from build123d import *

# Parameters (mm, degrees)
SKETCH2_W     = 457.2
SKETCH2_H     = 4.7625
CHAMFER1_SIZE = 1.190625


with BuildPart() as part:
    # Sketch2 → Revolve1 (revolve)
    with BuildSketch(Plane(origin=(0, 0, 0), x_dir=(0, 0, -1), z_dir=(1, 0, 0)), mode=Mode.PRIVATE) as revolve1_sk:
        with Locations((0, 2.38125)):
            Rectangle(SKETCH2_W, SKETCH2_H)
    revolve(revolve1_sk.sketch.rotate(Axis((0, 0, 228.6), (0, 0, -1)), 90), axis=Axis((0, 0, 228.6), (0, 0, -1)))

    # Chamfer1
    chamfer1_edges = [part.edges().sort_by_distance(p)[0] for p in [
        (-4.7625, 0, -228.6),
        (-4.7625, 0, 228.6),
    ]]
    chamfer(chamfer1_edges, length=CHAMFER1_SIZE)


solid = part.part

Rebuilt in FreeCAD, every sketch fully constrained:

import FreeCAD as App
import Part
import Sketcher
Q = App.Units.Quantity


def edges_at(feature, points):
    """Names of the edges that pass closest to the given points."""
    edges = feature.Shape.Edges
    near = lambda p: min(range(len(edges)), key=lambda i: edges[i].distToShape(Part.Vertex(*p))[0])
    return sorted({f"Edge{near(p) + 1}" for p in points})

doc = App.newDocument("Part")
params = doc.addObject("Spreadsheet::Sheet", "Params")
for row, (alias, value) in enumerate([
    ("sketch1_height", "18 in"),
    ("sketch1_width", "0.1875 in"),
    ("revolution_angle", "360 deg"),
    ("chamfer_size", "0.046875 in"),
], start=1):
    params.set(f"A{row}", alias)
    params.set(f"B{row}", "=" + value)
    params.setAlias(f"B{row}", alias)

body = doc.addObject("PartDesign::Body", "Body")

sketch1 = doc.addObject("Sketcher::SketchObject", "Sketch")
body.addObject(sketch1)
sketch1.AttachmentSupport = (doc.YZ_Plane, [""])
sketch1.MapMode = "FlatFace"
sketch1.addGeometry([
    Part.LineSegment(App.Vector(4.8, 228.6, 0), App.Vector(0, 228.6, 0)),
    Part.LineSegment(App.Vector(0, 228.6, 0), App.Vector(0, -228.6, 0)),
    Part.LineSegment(App.Vector(0, -228.6, 0), App.Vector(4.8, -228.6, 0)),
    Part.LineSegment(App.Vector(4.8, -228.6, 0), App.Vector(4.8, 228.6, 0)),
], False)
sketch1.addConstraint([
    Sketcher.Constraint("Coincident", 0, 2, 1, 1),
    Sketcher.Constraint("Coincident", 1, 2, 2, 1),
    Sketcher.Constraint("Coincident", 2, 2, 3, 1),
    Sketcher.Constraint("Coincident", 3, 2, 0, 1),
    Sketcher.Constraint("Horizontal", 0),
    Sketcher.Constraint("Vertical", 1),
    Sketcher.Constraint("Horizontal", 2),
    Sketcher.Constraint("Vertical", 3),
    Sketcher.Constraint("Symmetric", 0, 2, 1, 2, -1, 1),
    Sketcher.Constraint("DistanceY", 1, 2, 1, 1, Q("18 in")),
    Sketcher.Constraint("DistanceX", 0, 2, 0, 1, Q("0.1875 in")),
])
sketch1.setExpression("Constraints[9]", "Params.sketch1_height")
sketch1.setExpression("Constraints[10]", "Params.sketch1_width")
revolution = doc.addObject("PartDesign::Revolution", "Revolution")
body.addObject(revolution)
revolution.Profile = sketch1
revolution.ReferenceAxis = (sketch1, ["V_Axis"])
revolution.setExpression("Angle", "Params.revolution_angle")
doc.recompute()

chamfer = doc.addObject("PartDesign::Chamfer", "Chamfer")
body.addObject(chamfer)
chamfer.Base = (revolution, edges_at(revolution, [(-4.763, 0, -228.6), (-4.763, 0, 228.6)]))
chamfer.setExpression("Size", "Params.chamfer_size")

doc.recompute()
